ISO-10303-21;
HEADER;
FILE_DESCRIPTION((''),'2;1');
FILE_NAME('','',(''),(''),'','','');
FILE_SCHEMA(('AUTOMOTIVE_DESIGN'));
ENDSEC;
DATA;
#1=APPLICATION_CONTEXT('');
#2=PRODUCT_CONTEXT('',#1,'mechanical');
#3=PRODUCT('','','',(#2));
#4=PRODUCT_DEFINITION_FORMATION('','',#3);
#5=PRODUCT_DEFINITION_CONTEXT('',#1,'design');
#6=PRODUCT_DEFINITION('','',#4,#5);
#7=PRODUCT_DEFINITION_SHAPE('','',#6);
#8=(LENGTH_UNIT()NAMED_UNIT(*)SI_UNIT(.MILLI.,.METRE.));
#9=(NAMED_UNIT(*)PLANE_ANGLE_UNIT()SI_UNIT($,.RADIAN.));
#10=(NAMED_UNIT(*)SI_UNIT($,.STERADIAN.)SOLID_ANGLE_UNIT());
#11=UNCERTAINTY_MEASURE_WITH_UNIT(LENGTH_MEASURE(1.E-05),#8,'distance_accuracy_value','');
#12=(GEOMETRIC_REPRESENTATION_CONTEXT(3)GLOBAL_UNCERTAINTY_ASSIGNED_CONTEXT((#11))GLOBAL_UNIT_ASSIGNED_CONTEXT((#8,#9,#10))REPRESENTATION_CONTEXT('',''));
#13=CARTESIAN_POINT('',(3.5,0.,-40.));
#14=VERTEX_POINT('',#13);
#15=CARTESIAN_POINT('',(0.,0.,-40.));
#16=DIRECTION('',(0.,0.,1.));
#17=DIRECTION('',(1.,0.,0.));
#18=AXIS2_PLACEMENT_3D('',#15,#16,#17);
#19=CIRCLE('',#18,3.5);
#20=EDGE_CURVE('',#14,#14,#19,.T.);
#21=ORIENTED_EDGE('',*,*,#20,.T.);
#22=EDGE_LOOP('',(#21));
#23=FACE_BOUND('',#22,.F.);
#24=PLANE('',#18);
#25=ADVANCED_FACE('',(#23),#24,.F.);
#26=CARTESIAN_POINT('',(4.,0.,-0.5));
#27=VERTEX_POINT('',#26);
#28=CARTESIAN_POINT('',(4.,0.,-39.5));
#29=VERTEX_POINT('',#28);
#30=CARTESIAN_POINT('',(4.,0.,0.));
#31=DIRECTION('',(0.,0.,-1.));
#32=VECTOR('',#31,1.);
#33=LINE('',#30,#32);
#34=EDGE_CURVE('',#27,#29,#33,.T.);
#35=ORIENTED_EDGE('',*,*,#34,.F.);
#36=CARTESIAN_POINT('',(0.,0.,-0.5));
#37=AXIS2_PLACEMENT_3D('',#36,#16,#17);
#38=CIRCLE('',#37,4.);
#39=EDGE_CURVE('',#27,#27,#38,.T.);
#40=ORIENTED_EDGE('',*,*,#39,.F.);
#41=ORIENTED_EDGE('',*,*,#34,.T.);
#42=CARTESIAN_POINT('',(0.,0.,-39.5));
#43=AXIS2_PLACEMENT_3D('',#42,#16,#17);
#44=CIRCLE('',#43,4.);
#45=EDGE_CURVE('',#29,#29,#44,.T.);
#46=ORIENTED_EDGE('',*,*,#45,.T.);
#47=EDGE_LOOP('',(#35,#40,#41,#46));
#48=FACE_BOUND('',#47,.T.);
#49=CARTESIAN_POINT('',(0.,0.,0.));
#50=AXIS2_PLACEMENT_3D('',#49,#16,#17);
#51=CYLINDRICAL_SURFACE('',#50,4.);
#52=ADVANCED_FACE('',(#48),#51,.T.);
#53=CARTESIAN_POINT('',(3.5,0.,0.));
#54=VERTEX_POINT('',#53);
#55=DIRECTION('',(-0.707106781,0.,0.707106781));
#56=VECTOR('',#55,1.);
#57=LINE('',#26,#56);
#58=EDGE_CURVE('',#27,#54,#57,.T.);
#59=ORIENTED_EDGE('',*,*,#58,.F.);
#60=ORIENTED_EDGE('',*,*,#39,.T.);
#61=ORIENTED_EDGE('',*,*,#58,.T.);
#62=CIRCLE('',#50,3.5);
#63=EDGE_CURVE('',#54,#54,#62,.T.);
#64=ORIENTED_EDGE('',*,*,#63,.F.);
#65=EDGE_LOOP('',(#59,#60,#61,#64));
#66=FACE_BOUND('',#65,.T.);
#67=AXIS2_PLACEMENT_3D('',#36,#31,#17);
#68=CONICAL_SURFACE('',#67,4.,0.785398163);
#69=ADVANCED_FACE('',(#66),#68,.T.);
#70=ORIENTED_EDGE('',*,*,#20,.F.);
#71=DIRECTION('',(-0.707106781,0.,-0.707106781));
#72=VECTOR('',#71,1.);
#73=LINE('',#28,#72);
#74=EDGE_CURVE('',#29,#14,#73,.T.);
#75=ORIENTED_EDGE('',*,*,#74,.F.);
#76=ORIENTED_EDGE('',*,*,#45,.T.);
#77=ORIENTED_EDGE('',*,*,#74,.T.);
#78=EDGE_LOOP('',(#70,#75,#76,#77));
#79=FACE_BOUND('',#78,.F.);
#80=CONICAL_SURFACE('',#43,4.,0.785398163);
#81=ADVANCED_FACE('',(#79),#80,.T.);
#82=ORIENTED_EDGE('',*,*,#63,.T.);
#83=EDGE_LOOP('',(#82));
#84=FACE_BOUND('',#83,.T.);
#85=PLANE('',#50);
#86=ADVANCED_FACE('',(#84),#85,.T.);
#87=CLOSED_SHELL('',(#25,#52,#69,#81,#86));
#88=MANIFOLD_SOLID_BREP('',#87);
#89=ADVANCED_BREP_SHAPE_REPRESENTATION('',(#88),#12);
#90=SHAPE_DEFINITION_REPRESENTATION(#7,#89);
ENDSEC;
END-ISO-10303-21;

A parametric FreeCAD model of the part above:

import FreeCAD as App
import Part
import Sketcher
from FreeCAD import Vector


def edges_at(feature, points):
    """Names of the edges that pass closest to the given points."""
    edges = feature.Shape.Edges
    near = lambda p: min(range(len(edges)), key=lambda i: edges[i].distToShape(Part.Vertex(*p))[0])
    return sorted({f"Edge{near(p) + 1}" for p in points})

doc = App.newDocument("Part")
body = doc.addObject("PartDesign::Body", "Body")

# Sketch on XY plane
sketch1 = body.newObject("Sketcher::SketchObject", "Sketch")
sketch1.AttachmentSupport = (doc.getObject("XY_Plane"), [""])
sketch1.MapMode = "FlatFace"
sketch1.addGeometry(Part.Circle(Vector(0, 0, 0), Vector(0, 0, 1), 4), False)
sketch1.addConstraint([
    Sketcher.Constraint("Coincident", 0, 3, -1, 1),
    Sketcher.Constraint("Diameter", 0, 8.0),
])
pad1 = body.newObject("PartDesign::Pad", "Pad")
pad1.Profile = sketch1
pad1.Length = 40
pad1.Reversed = True
doc.recompute()

chamfer = body.newObject("PartDesign::Chamfer", "Chamfer")
chamfer.Base = (pad1, edges_at(pad1, [(-4, 0, 0), (-4, 0, -40)]))
chamfer.Size = 0.5

doc.recompute()
